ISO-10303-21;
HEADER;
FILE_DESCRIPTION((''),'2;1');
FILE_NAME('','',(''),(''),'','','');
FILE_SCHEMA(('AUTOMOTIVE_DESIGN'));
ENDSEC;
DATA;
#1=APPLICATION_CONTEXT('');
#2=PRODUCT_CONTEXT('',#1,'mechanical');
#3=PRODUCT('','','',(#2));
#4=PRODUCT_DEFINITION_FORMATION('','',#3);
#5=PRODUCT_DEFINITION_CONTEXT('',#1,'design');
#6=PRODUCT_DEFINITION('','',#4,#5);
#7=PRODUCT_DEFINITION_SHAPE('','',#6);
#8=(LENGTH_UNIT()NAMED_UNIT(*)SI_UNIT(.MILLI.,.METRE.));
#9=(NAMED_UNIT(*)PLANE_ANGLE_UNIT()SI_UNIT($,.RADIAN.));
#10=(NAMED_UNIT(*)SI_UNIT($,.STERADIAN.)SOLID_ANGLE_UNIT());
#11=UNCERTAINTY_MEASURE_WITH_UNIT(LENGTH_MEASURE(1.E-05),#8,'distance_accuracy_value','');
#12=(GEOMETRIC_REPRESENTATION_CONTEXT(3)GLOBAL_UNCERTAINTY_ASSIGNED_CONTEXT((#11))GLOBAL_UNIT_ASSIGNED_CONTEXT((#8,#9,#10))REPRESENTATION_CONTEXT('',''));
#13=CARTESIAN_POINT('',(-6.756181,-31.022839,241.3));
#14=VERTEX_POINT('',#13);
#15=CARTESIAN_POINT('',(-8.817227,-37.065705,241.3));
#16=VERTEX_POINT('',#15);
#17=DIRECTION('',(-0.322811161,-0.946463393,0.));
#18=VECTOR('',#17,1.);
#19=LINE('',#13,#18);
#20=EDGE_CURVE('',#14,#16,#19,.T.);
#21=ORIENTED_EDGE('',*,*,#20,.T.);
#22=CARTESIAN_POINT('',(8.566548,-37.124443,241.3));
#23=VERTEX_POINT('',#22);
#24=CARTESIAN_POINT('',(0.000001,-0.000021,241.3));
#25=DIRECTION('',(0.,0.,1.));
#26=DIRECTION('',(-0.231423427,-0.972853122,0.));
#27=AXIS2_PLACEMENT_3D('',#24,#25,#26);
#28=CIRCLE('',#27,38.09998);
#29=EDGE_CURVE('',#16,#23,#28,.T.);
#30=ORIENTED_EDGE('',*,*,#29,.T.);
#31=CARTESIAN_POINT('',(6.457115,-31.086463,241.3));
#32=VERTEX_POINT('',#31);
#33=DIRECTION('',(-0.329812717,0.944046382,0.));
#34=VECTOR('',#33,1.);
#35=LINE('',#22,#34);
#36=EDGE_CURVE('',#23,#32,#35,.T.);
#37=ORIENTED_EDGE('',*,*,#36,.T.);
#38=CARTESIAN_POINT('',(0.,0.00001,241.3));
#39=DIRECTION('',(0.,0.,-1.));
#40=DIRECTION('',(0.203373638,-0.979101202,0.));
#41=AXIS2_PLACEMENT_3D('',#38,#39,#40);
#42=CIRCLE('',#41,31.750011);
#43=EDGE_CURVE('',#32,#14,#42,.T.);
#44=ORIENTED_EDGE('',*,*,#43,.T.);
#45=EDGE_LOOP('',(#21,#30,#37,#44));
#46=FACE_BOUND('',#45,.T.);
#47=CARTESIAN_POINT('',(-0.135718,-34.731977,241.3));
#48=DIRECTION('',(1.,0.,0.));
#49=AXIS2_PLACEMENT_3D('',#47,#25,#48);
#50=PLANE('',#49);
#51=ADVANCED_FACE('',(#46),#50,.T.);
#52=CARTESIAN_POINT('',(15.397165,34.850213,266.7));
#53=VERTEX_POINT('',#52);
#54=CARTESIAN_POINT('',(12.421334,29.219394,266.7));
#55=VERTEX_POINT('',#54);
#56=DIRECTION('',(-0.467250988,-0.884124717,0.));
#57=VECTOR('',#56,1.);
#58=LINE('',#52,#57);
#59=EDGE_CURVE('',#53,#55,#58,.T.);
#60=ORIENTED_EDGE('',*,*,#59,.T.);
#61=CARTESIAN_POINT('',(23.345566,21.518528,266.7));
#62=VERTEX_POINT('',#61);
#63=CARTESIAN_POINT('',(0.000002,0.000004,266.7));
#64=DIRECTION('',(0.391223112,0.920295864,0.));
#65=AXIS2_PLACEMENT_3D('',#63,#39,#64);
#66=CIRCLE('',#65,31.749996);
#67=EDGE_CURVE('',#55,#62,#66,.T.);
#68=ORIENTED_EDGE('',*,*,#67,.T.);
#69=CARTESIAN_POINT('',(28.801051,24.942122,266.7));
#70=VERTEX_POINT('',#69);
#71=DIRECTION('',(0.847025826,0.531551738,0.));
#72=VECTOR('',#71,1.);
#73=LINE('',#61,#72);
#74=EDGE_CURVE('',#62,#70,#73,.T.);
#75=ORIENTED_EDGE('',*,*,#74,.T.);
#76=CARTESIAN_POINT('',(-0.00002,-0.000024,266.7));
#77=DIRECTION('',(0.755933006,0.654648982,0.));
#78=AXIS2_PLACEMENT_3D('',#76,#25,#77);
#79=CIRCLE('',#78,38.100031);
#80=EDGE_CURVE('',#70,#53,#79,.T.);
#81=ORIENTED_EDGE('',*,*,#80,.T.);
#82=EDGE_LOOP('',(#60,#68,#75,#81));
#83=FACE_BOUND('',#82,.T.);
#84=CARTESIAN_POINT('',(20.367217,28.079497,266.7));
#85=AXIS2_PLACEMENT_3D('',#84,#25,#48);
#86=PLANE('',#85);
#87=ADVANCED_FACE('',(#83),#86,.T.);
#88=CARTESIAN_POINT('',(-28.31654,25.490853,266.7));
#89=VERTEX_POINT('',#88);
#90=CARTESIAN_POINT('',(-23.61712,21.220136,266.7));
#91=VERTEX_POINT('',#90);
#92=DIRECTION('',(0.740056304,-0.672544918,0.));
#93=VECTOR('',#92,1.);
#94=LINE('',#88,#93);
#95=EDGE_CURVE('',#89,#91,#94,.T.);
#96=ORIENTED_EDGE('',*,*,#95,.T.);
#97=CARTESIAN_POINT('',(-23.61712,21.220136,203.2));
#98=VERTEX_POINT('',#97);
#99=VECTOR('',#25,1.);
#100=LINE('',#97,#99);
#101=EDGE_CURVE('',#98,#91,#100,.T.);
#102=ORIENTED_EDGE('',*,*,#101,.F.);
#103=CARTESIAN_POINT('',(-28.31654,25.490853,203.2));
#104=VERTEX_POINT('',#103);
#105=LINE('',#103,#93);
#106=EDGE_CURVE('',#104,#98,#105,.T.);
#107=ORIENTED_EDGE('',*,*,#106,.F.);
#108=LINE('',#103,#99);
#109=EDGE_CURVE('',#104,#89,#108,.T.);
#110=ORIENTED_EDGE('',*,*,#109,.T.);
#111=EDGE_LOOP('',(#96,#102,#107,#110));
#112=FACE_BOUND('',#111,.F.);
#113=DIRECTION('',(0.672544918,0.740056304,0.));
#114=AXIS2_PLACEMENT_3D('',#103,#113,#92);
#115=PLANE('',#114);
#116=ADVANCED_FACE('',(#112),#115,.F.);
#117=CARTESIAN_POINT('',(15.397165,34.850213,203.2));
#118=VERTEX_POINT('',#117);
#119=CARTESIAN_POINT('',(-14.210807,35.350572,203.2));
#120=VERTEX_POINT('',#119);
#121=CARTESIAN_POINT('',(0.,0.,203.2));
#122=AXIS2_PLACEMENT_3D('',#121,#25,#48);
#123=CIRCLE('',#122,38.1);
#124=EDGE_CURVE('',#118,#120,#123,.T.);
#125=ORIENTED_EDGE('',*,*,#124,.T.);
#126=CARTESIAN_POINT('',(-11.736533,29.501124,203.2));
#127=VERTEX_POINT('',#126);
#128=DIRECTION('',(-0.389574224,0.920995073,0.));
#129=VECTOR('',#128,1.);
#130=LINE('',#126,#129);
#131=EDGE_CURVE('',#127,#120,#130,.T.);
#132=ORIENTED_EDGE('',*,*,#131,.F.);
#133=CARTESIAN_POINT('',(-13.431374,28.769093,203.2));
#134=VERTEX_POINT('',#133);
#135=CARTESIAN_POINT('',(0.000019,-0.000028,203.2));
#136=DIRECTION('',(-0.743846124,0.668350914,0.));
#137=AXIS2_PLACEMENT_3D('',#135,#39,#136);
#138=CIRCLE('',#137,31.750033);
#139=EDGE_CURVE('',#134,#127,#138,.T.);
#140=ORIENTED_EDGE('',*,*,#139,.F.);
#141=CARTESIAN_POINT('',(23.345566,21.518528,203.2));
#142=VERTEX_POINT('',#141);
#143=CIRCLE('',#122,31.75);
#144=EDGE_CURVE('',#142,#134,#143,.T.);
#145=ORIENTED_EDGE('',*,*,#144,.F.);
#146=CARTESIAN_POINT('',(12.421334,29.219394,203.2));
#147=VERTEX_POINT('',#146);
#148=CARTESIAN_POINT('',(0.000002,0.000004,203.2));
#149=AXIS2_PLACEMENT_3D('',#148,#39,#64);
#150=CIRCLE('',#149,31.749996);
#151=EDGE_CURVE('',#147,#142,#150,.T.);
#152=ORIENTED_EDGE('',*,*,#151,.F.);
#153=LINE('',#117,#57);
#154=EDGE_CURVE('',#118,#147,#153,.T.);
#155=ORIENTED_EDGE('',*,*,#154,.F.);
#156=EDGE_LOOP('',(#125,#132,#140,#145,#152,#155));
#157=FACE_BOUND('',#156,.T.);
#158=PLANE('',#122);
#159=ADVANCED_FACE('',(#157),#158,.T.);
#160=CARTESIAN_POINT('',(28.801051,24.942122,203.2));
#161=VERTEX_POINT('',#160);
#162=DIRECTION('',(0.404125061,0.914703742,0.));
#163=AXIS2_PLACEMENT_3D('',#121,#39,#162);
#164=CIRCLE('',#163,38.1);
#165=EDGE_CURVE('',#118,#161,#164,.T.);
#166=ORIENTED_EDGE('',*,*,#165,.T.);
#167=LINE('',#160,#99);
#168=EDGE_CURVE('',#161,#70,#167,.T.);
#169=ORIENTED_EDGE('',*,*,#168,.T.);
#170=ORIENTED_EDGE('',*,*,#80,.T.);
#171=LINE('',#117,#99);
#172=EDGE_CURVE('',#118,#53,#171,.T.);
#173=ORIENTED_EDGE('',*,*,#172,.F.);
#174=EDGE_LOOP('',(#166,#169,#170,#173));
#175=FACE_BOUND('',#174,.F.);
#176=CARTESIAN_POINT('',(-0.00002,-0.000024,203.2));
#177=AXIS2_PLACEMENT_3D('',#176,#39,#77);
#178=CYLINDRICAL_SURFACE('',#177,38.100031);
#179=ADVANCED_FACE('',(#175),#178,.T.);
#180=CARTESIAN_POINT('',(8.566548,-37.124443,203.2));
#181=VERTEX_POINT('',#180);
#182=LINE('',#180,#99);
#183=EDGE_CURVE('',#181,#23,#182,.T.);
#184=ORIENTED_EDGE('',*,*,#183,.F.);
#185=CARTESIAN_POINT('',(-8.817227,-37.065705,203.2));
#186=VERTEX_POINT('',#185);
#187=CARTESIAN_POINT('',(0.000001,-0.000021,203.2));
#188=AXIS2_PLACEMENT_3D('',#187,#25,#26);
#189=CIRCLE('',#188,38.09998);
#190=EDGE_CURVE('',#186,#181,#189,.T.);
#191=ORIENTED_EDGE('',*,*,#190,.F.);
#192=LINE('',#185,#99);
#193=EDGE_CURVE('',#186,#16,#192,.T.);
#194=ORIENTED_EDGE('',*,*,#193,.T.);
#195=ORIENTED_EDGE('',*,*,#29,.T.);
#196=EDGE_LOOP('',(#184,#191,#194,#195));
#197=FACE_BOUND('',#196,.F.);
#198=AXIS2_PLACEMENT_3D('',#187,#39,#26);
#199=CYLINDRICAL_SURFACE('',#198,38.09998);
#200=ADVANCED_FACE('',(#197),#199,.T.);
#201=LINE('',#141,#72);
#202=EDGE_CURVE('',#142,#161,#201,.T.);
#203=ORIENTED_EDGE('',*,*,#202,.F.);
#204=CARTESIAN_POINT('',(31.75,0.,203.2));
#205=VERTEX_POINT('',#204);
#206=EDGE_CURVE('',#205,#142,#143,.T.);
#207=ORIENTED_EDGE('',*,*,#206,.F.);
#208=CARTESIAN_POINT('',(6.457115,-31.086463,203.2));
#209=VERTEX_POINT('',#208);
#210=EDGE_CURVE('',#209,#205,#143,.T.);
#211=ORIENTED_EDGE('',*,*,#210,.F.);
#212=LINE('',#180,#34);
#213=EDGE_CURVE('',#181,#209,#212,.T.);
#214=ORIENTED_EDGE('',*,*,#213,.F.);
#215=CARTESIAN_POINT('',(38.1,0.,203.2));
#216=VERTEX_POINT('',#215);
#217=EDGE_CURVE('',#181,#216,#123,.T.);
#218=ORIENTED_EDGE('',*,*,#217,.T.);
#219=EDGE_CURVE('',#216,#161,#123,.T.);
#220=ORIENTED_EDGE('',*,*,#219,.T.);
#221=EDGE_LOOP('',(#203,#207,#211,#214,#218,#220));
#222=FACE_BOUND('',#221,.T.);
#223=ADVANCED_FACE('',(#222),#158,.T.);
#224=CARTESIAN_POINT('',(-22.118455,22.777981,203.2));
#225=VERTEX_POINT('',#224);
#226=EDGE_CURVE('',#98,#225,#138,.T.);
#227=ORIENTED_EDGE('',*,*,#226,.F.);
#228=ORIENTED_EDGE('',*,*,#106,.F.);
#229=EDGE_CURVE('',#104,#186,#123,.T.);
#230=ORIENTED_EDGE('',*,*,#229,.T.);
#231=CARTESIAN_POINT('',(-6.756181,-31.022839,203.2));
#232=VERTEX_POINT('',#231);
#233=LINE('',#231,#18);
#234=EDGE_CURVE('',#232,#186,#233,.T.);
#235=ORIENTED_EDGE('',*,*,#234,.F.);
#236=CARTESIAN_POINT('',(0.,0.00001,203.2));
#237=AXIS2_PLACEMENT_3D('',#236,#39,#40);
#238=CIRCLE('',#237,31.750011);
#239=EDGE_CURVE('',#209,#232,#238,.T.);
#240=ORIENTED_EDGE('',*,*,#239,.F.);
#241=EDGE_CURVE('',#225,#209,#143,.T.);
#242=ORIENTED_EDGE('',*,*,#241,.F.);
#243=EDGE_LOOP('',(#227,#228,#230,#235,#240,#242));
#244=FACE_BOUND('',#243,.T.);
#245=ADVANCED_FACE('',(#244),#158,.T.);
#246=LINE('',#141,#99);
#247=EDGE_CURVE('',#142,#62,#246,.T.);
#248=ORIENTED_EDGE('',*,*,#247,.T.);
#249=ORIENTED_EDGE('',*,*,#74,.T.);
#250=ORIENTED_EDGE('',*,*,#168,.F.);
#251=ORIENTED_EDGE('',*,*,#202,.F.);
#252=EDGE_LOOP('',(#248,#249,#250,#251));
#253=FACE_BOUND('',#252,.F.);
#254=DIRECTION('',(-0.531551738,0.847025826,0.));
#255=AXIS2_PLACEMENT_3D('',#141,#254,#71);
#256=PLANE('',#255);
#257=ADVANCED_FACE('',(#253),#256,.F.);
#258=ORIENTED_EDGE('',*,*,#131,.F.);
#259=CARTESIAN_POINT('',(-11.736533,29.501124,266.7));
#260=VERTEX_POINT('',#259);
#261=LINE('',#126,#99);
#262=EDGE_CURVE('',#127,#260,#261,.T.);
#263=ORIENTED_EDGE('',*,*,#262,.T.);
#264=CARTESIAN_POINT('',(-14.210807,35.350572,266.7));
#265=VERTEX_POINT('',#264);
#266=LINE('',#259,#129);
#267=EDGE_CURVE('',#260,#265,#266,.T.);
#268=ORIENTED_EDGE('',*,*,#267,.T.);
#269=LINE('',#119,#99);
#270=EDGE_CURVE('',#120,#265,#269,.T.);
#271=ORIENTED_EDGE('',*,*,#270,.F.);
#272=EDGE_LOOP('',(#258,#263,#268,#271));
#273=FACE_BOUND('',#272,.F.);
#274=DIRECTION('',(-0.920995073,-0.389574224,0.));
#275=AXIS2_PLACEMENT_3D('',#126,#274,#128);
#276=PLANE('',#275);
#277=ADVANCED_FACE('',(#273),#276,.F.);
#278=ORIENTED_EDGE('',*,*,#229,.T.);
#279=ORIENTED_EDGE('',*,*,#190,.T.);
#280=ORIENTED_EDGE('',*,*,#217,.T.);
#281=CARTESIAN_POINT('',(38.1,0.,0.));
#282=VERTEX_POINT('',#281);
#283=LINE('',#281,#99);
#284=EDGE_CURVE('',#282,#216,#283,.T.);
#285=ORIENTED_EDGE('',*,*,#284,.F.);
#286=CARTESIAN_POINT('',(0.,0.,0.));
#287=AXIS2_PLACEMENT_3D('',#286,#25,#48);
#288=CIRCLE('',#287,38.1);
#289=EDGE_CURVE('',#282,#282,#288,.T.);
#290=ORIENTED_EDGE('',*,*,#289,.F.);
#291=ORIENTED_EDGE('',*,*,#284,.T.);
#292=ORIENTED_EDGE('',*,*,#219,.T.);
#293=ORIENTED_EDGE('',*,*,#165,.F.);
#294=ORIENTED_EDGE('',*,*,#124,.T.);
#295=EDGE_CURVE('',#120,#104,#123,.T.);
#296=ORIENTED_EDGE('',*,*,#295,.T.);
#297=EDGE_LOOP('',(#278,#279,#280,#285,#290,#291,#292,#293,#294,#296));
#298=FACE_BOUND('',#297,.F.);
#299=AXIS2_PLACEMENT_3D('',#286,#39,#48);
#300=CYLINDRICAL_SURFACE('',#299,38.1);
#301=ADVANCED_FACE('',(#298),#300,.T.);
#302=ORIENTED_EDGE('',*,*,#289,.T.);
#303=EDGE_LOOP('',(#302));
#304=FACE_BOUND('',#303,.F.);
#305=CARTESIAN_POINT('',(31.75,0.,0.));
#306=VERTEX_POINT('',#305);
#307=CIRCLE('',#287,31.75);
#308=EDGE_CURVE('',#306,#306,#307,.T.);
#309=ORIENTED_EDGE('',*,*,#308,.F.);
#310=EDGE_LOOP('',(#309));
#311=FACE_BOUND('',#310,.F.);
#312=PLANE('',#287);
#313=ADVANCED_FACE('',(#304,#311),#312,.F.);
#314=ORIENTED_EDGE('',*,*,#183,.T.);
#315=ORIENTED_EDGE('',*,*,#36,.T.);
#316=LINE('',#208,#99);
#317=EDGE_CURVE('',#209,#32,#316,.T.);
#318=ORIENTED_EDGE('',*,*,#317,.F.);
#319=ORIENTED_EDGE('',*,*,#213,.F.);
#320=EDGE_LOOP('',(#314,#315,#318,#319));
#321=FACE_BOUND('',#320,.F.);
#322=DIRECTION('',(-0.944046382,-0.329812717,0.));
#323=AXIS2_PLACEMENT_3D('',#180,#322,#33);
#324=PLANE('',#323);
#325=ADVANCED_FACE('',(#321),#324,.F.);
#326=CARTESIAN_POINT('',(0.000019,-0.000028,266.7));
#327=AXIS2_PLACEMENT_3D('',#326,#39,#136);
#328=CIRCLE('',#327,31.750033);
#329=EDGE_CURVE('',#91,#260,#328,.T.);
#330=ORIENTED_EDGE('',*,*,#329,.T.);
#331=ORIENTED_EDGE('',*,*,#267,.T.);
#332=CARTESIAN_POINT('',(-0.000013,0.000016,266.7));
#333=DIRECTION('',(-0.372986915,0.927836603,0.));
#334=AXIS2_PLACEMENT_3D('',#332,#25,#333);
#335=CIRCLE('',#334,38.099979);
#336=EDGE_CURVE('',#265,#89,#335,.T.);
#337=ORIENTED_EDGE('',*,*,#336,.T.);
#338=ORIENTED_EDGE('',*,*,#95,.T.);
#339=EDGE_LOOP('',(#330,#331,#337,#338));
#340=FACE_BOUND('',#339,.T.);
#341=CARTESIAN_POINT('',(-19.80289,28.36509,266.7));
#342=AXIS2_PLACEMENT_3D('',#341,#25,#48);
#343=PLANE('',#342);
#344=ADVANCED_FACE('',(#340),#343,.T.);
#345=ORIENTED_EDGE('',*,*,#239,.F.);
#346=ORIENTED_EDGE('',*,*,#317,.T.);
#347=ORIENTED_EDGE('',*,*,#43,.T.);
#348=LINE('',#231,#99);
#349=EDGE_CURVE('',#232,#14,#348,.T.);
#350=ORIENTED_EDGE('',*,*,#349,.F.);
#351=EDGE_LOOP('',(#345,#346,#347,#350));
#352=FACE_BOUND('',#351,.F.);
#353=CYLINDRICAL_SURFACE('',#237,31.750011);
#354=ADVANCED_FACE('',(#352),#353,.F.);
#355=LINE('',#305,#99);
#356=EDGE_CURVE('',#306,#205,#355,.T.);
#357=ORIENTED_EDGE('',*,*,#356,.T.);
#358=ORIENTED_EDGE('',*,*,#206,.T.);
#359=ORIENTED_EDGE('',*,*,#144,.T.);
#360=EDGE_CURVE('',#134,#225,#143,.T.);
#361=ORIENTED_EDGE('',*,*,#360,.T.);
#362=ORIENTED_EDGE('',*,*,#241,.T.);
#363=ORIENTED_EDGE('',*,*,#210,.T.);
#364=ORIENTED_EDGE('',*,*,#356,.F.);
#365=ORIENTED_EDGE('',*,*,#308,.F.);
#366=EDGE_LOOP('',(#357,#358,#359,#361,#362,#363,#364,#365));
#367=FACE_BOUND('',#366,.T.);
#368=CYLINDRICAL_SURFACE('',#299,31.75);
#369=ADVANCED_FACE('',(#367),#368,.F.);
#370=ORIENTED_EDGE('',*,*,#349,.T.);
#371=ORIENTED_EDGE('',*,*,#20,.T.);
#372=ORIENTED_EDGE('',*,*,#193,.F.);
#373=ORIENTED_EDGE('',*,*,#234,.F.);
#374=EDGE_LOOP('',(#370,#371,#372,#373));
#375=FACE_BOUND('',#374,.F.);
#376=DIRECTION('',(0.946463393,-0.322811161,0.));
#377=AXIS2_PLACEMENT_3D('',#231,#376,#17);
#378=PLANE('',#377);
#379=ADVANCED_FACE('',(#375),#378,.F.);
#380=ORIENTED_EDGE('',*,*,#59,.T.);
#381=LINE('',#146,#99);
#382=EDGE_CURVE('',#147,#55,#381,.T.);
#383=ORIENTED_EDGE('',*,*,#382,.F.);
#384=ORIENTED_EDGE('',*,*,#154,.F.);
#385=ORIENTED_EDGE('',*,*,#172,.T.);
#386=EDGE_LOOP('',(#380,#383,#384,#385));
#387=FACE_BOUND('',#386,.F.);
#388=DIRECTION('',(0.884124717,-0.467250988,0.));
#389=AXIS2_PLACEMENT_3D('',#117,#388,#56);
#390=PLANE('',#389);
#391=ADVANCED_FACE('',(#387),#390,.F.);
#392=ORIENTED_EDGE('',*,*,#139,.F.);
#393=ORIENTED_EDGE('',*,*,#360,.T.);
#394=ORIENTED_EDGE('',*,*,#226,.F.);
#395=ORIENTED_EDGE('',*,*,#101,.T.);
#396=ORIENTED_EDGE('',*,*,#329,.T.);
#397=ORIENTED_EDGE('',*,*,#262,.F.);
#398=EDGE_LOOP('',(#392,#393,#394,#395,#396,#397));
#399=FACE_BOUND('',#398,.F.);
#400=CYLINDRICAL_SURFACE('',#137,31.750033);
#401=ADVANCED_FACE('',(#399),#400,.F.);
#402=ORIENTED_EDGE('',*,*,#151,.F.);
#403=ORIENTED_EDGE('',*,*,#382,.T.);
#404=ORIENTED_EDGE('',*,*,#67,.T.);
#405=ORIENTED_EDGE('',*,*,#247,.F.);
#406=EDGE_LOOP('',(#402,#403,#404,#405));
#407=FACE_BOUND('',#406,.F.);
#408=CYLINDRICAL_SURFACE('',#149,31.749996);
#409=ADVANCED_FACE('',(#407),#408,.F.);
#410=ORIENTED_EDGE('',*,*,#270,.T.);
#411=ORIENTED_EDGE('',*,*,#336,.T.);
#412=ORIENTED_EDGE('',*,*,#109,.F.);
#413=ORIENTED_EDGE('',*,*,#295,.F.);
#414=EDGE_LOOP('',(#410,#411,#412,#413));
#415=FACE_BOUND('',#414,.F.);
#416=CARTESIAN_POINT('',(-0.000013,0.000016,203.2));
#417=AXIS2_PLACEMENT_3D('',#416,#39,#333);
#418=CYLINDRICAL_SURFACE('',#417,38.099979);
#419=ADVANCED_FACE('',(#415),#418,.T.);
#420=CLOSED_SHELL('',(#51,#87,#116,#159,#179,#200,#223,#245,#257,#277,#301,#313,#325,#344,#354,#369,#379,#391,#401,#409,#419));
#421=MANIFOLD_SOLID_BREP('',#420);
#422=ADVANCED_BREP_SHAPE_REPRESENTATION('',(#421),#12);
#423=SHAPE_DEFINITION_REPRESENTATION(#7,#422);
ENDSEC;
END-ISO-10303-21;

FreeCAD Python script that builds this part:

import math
import FreeCAD as App
import Part
import Sketcher

V = App.Vector
Q = App.Units.Quantity

doc = App.newDocument("Part")
params = doc.addObject("Spreadsheet::Sheet", "Params")
for row, (alias, value) in enumerate([
    ("sketch1_diameter", "3 in"),
    ("sketch1_diameter2", "2.5 in"),
    ("pad1_length", "8 in"),
    ("sketch2_radius", "1.2499998 in"),
    ("pad2_length", "2.5 in"),
    ("pad3_length", "1.5 in"),
], start=1):
    params.set(f"A{row}", alias)
    params.set(f"B{row}", "=" + value)
    params.setAlias(f"B{row}", alias)

body = doc.addObject("PartDesign::Body", "Body")

# Sketch on XY plane
sketch1 = body.newObject("Sketcher::SketchObject", "Sketch")
sketch1.AttachmentSupport = (doc.getObject("XY_Plane"), [""])
sketch1.MapMode = "FlatFace"
sketch1.addGeometry([
    Part.Circle(V(0, 0, 0), V(0, 0, 1), 38),
    Part.Circle(V(0, 0, 0), V(0, 0, 1), 32),
], False)
sketch1.addConstraint([
    Sketcher.Constraint("Coincident", 0, 3, -1, 1),
    Sketcher.Constraint("Coincident", 1, 3, -1, 1),
    Sketcher.Constraint("Diameter", 0, Q("3 in")),
    Sketcher.Constraint("Diameter", 1, Q("2.5 in")),
])
sketch1.setExpression("Constraints[2]", "Params.sketch1_diameter")
sketch1.setExpression("Constraints[3]", "Params.sketch1_diameter2")
pad1 = body.newObject("PartDesign::Pad", "Pad")
pad1.Profile = sketch1
pad1.setExpression("Length", "Params.pad1_length")

# Sketch on XY plane
sketch2 = body.newObject("Sketcher::SketchObject", "Sketch001")
sketch2.AttachmentSupport = (doc.getObject("XY_Plane"), [""])
sketch2.MapMode = "FlatFace"
sketch2.AttachmentOffset = App.Placement(V(0, 0, 8 * 25.4), App.Rotation())
sketch2.addGeometry([
    Part.LineSegment(V(-28.31654, 25.490853, 0), V(-23.61712, 21.220136, 0)),  # 0
    Part.ArcOfCircle(Part.Circle(V(0.000019, -0.000028, 0), V(0, 0, 1), 31.750033), math.radians(111.694329), math.radians(138.060085)),  # 1
    Part.LineSegment(V(-11.736533, 29.501124, 0), V(-14.210807, 35.350572, 0)),  # 2
    Part.ArcOfCircle(Part.Circle(V(-0.000013, 0.000016, 0), V(0, 0, 1), 38.099979), math.radians(111.899946), math.radians(138.006123)),  # 3
    Part.LineSegment(V(15.397165, 34.850213, 0), V(12.421334, 29.219394, 0)),  # 4
    Part.ArcOfCircle(Part.Circle(V(0.000002, 0.000004, 0), V(0, 0, 1), 31.749996), math.radians(42.667981), math.radians(66.969374)),  # 5
    Part.LineSegment(V(23.345566, 21.518528, 0), V(28.801051, 24.942122, 0)),  # 6
    Part.ArcOfCircle(Part.Circle(V(-0.00002, -0.000024, 0), V(0, 0, 1), 38.100031), math.radians(40.893039), math.radians(66.163677)),  # 7
], False)
sketch2.addConstraint([
    Sketcher.Constraint("Coincident", 0, 2, 1, 2),
    Sketcher.Constraint("Coincident", 1, 1, 2, 1),
    Sketcher.Constraint("Coincident", 2, 2, 3, 1),
    Sketcher.Constraint("Coincident", 3, 2, 0, 1),
    Sketcher.Constraint("Coincident", 4, 2, 5, 2),
    Sketcher.Constraint("Coincident", 5, 1, 6, 1),
    Sketcher.Constraint("Coincident", 6, 2, 7, 1),
    Sketcher.Constraint("Coincident", 7, 2, 4, 1),
    Sketcher.Constraint("Coincident", 5, 3, -1, 1),
    Sketcher.Constraint("Symmetric", 1, 3, 7, 3, -2),
    Sketcher.Constraint("Radius", 5, Q("1.2499998 in")),
    Sketcher.Constraint("Radius", 3, Q("38.099979 mm")),
    Sketcher.Constraint("Radius", 7, Q("38.100031 mm")),
    Sketcher.Constraint("Radius", 1, Q("31.750033 mm")),
    Sketcher.Constraint("DistanceX", 3, 3, 6, 2, Q("1.1339002 in")),
    Sketcher.Constraint("DistanceX", 0, 2, 7, 3, Q("23.6171 mm")),
    Sketcher.Constraint("DistanceX", 7, 2, 5, 1, Q("7.948401 mm")),
    Sketcher.Constraint("DistanceX", 0, 2, -1, 1, Q("23.61712 mm")),
    Sketcher.Constraint("DistanceX", 3, 2, -1, 1, Q("28.31654 mm")),
    Sketcher.Constraint("DistanceY", -1, 1, 5, 1, Q("21.518528 mm")),
    Sketcher.Constraint("DistanceX", -1, 1, 6, 2, Q("28.801051 mm")),
    Sketcher.Constraint("DistanceY", 3, 3, 0, 2, Q("21.22012 mm")),
    Sketcher.Constraint("DistanceY", 5, 3, 0, 2, Q("21.220132 mm")),
    Sketcher.Constraint("DistanceX", 1, 1, 3, 3, Q("11.73652 mm")),
    Sketcher.Constraint("DistanceY", 1, 1, 2, 2, Q("5.849448 mm")),
    Sketcher.Constraint("DistanceY", 4, 2, 1, 1, Q("0.28173 mm")),
])
sketch2.setExpression("Constraints[10]", "Params.sketch2_radius")
pad2 = body.newObject("PartDesign::Pad", "Pad001")
pad2.Profile = sketch2
pad2.setExpression("Length", "Params.pad2_length")

# Sketch on XY plane
sketch3 = body.newObject("Sketcher::SketchObject", "Sketch002")
sketch3.AttachmentSupport = (doc.getObject("XY_Plane"), [""])
sketch3.MapMode = "FlatFace"
sketch3.AttachmentOffset = App.Placement(V(0, 0, 8 * 25.4), App.Rotation())
sketch3.addGeometry([
    Part.ArcOfCircle(Part.Circle(V(0, 0, 0), V(0, 0, 1), 32), math.radians(-102), math.radians(-78)),
    Part.LineSegment(V(-7, -31, 0), V(-9, -37, 0)),
    Part.ArcOfCircle(Part.Circle(V(0, 0, 0), V(0, 0, 1), 38), math.radians(-103), math.radians(-77)),
    Part.LineSegment(V(9, -37, 0), V(6, -31, 0)),
], False)
sketch3.addConstraint([
    Sketcher.Constraint("Coincident", 0, 1, 1, 1),
    Sketcher.Constraint("Coincident", 1, 2, 2, 1),
    Sketcher.Constraint("Coincident", 2, 2, 3, 1),
    Sketcher.Constraint("Coincident", 3, 2, 0, 2),
    Sketcher.Constraint("PointOnObject", 0, 3, -2),
    Sketcher.Constraint("PointOnObject", 2, 3, -2),
    Sketcher.Constraint("Radius", 0, Q("31.750011 mm")),
    Sketcher.Constraint("Radius", 2, Q("38.09998 mm")),
    Sketcher.Constraint("Distance", 1, Q("6.38468 mm")),
    Sketcher.Constraint("Distance", 3, Q("6.395851 mm")),
    Sketcher.Constraint("DistanceX", 0, 1, -1, 1, Q("6.756181 mm")),
    Sketcher.Constraint("DistanceY", 0, 1, -1, 1, Q("31.022839 mm")),
    Sketcher.Constraint("DistanceY", 0, 1, 2, 3, Q("31.022818 mm")),
    Sketcher.Constraint("DistanceX", 0, 1, 2, 2, Q("15.322729 mm")),
])
pad3 = body.newObject("PartDesign::Pad", "Pad002")
pad3.Profile = sketch3
pad3.setExpression("Length", "Params.pad3_length")

doc.recompute()
